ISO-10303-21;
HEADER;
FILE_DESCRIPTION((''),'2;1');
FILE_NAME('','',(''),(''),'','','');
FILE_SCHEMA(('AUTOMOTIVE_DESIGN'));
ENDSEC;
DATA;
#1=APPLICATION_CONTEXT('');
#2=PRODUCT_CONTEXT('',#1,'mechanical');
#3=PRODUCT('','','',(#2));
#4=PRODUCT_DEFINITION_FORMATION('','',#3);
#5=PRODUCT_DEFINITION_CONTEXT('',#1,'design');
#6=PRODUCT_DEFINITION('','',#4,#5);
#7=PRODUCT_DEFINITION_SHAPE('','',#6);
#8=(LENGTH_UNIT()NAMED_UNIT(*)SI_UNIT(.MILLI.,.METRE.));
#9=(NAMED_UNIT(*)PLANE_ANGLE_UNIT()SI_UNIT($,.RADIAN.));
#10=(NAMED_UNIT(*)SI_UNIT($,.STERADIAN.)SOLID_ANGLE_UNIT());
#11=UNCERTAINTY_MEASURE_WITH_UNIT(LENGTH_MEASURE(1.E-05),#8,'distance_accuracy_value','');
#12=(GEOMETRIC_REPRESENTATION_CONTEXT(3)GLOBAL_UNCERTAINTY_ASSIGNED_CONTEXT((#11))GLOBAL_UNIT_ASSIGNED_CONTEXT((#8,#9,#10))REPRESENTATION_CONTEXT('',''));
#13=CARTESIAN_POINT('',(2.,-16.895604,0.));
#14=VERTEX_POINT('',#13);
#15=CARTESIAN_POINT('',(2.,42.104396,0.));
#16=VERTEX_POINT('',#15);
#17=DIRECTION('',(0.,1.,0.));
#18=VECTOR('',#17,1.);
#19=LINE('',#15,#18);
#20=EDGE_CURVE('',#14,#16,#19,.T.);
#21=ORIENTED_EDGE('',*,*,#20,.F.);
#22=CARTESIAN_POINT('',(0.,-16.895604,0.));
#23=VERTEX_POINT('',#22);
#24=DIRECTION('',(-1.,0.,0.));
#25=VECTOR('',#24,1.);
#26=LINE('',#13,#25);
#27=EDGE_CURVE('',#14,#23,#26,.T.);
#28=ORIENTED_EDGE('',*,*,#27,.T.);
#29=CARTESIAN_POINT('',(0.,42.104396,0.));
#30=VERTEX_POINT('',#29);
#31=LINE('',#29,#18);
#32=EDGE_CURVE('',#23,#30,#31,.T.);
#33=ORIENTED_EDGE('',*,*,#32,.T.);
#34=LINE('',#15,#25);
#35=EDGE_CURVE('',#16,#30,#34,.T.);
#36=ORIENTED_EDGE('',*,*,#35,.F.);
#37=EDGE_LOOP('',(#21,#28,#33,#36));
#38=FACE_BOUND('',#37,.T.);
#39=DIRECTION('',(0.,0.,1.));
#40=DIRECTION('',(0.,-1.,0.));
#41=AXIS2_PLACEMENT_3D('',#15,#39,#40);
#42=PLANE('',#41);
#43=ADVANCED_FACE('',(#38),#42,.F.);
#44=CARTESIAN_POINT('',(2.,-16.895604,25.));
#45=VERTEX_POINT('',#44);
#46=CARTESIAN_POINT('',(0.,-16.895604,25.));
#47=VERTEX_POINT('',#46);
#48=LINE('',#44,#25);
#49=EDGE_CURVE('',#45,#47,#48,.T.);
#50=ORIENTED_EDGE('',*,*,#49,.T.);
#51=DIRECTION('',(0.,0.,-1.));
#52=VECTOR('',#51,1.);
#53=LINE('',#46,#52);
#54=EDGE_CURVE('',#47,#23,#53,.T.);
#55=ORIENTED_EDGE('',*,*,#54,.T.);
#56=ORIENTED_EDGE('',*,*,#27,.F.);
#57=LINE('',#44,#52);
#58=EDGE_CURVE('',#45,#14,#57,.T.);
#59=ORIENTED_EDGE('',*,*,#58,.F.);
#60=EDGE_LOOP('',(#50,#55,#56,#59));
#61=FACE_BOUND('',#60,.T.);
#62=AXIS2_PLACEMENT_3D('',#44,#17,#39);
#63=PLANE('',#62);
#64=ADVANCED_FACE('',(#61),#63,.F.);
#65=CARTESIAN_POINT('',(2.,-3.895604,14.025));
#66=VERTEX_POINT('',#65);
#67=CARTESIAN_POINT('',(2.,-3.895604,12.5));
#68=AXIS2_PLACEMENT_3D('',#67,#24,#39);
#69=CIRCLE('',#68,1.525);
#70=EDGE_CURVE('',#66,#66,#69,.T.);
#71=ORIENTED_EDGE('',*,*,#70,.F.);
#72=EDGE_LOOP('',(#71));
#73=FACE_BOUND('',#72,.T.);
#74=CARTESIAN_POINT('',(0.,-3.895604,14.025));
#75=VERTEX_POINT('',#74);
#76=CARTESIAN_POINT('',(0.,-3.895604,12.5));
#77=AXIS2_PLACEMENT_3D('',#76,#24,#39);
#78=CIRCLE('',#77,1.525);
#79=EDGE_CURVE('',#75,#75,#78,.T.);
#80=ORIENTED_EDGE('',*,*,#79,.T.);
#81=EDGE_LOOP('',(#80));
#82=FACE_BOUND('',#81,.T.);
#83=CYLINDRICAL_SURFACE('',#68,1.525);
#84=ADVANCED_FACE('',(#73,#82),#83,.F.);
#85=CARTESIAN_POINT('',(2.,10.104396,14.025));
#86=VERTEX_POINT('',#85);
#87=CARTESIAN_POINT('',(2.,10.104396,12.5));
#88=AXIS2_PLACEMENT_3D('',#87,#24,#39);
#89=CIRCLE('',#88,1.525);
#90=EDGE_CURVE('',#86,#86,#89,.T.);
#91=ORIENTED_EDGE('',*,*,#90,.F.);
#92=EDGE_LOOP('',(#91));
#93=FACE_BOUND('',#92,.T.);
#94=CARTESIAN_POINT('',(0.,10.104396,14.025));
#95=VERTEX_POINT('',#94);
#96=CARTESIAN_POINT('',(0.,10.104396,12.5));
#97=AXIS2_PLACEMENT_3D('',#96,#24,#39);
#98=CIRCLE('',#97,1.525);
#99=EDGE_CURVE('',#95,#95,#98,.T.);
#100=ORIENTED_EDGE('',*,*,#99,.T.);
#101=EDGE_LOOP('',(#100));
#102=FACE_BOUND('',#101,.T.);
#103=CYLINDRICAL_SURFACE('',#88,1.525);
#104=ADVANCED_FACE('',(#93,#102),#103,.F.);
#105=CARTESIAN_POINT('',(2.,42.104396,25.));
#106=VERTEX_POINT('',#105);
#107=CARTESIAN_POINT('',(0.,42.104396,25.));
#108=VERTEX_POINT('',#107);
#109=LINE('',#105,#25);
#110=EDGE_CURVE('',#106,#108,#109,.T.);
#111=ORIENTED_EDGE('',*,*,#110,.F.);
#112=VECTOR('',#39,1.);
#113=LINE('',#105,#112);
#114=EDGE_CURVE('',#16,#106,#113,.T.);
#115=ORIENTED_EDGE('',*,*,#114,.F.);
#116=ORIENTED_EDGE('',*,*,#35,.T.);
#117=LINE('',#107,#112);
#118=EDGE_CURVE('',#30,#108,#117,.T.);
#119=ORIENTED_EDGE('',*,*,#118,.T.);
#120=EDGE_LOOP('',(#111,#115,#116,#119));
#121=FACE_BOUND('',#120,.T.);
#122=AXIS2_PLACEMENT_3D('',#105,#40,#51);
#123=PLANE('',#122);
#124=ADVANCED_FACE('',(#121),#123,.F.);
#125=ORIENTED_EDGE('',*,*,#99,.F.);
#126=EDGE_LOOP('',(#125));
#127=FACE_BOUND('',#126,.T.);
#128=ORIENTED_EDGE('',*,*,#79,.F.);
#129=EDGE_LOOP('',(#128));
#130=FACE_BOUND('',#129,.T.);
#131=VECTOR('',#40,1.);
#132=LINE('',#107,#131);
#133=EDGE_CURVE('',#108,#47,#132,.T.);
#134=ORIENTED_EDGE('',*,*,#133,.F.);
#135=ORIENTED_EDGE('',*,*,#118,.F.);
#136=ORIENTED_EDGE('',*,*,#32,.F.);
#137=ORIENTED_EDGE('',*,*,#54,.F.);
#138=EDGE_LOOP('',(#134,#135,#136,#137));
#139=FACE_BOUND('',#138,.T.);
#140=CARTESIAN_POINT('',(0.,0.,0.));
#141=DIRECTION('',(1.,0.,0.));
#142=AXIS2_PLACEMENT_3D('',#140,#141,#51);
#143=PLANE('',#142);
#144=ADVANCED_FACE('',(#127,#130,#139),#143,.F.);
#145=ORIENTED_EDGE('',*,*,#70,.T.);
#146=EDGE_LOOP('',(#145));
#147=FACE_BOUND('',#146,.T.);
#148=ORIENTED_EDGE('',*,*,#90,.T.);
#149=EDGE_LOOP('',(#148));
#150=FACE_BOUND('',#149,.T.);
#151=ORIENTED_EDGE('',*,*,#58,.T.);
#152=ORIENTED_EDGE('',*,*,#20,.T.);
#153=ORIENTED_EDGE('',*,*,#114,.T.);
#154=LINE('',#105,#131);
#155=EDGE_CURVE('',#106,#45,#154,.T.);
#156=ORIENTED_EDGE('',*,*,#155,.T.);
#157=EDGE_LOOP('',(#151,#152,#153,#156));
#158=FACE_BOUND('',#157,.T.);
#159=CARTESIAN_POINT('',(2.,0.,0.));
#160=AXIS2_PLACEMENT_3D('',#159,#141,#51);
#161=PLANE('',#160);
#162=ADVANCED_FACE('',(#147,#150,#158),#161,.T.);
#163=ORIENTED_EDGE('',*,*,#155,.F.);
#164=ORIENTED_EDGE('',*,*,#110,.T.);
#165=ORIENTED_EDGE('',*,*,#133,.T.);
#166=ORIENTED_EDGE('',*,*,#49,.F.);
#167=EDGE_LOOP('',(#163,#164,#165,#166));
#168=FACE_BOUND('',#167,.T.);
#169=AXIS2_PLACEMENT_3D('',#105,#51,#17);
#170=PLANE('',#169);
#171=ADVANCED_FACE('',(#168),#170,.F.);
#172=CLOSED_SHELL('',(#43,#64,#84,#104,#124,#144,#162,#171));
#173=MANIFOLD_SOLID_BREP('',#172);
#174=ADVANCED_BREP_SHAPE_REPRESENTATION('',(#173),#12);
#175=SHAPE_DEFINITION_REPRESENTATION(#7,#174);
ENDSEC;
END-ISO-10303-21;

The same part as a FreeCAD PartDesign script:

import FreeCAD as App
import Part
import Sketcher

V = App.Vector
Q = App.Units.Quantity


def add_polygon(sketch, points):
    """Adds a closed chain of lines whose ends are joined by coincident constraints."""
    first, n = sketch.GeometryCount, len(points)
    for a, b in zip(points, points[1:] + points[:1]):
        sketch.addGeometry(Part.LineSegment(App.Vector(*a, 0), App.Vector(*b, 0)), False)
    for i in range(n):
        sketch.addConstraint(Sketcher.Constraint("Coincident", first + i, 2, first + (i + 1) % n, 1))

doc = App.newDocument("Part")
body = doc.addObject("PartDesign::Body", "Body")

sketch1 = body.newObject("Sketcher::SketchObject", "Sketch")
sketch1.AttachmentSupport = (doc.getObject("YZ_Plane"), [""])
sketch1.MapMode = "FlatFace"
add_polygon(sketch1, [(42, 25), (-17, 25), (-17, 0), (42, 0)])
sketch1.addConstraint([
    Sketcher.Constraint("Horizontal", 0),
    Sketcher.Constraint("Vertical", 1),
    Sketcher.Constraint("Horizontal", 2),
    Sketcher.Constraint("Vertical", 3),
    Sketcher.Constraint("PointOnObject", 1, 2, -1),
    Sketcher.Constraint("DistanceX", 0, 2, 0, 1, Q("59 mm")),
    Sketcher.Constraint("DistanceY", 1, 2, 1, 1, Q("25 mm")),
    Sketcher.Constraint("DistanceX", 0, 2, -1, 1, Q("16.895604 mm")),
])
pad1 = body.newObject("PartDesign::Pad", "Pad")
pad1.Profile = sketch1
pad1.Length = 2

sketch2 = body.newObject("Sketcher::SketchObject", "Sketch001")
sketch2.AttachmentSupport = (doc.getObject("YZ_Plane"), [""])
sketch2.MapMode = "FlatFace"
sketch2.addGeometry([
    Part.Circle(V(-3.9, 12.5, 0), V(0, 0, 1), 1.5),
    Part.Circle(V(10.1, 12.5, 0), V(0, 0, 1), 1.5),
], False)
sketch2.addConstraint([
    Sketcher.Constraint("Equal", 0, 1),
    Sketcher.Constraint("Horizontal", 0, 3, 1, 3),
    Sketcher.Constraint("Diameter", 0, Q("3.05 mm")),
    Sketcher.Constraint("DistanceX", 0, 3, 1, 3, Q("14 mm")),
    Sketcher.Constraint("DistanceY", -1, 1, 0, 3, Q("12.5 mm")),
    Sketcher.Constraint("DistanceX", 0, 3, -1, 1, Q("3.895604 mm")),
])
pocket1 = body.newObject("PartDesign::Pocket", "Pocket")
pocket1.Profile = sketch2
pocket1.Type = "ThroughAll"
pocket1.Reversed = True

doc.recompute()
